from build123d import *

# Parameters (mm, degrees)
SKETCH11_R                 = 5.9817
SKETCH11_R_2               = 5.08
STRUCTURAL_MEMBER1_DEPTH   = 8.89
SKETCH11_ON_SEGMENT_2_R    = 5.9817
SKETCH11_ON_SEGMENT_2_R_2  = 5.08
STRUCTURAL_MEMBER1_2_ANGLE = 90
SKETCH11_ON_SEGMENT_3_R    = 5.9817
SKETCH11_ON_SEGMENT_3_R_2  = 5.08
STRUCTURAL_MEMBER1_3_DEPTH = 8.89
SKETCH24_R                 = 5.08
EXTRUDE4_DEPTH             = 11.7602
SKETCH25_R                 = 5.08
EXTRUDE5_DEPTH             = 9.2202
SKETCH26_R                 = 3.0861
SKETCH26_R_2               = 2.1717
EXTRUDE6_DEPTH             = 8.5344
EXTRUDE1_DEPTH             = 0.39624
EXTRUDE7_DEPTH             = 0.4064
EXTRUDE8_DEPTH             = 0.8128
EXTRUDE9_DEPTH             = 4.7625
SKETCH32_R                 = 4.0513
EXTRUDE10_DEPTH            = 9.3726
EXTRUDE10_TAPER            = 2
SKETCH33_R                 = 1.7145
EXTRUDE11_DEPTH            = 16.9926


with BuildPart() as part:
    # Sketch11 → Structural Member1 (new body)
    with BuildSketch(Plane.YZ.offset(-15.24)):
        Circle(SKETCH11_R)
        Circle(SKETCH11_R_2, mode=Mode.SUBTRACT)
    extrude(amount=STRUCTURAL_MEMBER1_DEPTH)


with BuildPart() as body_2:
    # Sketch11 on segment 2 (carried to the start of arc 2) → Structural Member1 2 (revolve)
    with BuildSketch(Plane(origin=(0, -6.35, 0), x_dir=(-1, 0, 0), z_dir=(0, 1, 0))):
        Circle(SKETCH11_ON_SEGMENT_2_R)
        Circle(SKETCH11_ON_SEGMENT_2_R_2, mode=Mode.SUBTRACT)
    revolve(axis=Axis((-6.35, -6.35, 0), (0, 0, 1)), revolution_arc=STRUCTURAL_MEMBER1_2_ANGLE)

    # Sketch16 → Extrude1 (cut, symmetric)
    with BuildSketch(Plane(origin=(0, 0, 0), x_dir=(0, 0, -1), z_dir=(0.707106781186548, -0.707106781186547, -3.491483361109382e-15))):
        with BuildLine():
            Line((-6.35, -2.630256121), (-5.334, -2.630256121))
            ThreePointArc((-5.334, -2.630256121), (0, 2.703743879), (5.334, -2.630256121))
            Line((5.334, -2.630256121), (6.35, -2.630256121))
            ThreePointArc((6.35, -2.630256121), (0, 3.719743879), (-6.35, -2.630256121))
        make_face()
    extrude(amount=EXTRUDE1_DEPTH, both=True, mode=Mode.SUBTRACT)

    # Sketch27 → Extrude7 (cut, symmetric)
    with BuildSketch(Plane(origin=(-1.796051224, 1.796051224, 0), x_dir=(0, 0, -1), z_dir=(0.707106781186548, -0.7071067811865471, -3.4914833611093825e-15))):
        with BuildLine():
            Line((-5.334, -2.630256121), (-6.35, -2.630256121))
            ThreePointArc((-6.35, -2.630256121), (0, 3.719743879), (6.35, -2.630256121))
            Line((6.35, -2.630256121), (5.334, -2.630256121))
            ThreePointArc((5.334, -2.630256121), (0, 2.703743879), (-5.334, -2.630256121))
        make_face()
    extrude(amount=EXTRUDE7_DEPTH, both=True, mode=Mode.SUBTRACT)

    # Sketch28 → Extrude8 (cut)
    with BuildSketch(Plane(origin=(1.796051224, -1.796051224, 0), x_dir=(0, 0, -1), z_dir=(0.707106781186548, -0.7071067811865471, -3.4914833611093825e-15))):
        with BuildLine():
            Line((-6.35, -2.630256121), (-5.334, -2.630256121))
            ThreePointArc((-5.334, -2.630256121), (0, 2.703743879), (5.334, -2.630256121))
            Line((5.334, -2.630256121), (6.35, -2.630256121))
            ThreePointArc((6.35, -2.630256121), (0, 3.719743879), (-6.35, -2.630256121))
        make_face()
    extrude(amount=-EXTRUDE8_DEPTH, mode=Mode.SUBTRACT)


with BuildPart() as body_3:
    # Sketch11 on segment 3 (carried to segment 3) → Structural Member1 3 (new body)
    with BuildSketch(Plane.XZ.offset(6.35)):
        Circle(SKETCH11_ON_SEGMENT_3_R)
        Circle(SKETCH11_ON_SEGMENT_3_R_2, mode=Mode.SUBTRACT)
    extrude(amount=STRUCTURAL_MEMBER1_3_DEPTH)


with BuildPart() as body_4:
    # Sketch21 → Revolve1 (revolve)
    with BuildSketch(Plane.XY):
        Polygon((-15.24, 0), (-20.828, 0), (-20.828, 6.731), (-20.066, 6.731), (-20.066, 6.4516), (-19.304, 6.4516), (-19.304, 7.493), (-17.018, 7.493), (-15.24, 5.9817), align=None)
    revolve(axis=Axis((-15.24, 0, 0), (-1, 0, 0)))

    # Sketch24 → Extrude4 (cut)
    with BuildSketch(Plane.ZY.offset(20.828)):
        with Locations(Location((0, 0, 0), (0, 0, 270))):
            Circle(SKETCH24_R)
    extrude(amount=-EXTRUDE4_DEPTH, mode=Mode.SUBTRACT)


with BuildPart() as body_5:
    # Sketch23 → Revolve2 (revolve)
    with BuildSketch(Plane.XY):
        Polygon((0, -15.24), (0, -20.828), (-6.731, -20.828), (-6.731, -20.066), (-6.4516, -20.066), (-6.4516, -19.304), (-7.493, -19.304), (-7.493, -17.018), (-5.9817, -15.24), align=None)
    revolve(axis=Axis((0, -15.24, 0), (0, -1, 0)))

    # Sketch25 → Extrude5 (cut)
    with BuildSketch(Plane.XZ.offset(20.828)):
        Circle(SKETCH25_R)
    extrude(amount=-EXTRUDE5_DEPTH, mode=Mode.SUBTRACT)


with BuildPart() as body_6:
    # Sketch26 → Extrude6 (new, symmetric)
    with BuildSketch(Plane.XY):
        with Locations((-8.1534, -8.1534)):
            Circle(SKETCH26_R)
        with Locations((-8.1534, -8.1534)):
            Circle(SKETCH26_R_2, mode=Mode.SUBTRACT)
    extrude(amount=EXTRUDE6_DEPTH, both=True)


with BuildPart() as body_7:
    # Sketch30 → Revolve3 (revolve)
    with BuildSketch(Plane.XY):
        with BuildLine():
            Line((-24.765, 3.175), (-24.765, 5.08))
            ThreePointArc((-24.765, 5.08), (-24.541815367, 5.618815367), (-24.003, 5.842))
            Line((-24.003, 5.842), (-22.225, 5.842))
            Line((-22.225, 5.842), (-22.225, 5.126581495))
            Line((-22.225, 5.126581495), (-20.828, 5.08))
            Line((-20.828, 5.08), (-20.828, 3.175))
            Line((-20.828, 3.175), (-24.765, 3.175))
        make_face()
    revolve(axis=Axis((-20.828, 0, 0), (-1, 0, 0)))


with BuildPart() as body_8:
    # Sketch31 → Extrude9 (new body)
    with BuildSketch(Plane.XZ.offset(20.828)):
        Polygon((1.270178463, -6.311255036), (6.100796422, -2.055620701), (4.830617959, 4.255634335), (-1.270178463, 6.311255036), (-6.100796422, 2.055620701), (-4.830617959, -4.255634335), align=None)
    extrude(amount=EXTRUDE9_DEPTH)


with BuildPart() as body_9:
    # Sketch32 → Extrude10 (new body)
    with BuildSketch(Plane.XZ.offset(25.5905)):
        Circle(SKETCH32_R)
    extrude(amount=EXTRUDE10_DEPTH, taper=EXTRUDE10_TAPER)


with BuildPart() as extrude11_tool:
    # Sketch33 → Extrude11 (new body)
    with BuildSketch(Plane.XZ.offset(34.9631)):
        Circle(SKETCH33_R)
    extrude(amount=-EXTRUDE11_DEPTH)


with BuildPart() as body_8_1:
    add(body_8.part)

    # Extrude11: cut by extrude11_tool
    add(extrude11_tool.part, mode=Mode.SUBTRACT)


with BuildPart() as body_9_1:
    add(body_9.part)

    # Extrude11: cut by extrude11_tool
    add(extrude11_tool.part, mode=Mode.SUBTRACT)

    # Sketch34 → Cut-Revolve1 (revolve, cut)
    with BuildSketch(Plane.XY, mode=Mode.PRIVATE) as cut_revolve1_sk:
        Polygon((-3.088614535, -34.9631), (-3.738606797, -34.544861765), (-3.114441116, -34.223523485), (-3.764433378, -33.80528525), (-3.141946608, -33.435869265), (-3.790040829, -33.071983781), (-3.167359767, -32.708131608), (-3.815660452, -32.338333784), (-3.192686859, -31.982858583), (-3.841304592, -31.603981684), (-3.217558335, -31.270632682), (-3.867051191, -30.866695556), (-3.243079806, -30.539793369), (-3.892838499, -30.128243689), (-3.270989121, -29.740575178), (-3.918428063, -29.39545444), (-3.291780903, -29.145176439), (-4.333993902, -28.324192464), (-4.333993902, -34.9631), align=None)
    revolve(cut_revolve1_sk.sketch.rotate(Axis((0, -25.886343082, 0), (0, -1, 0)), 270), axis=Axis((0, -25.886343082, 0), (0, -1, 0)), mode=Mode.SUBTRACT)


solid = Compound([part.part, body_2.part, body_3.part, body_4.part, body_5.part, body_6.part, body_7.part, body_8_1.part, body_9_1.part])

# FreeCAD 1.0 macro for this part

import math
import FreeCAD as App
import Part
import Sketcher
from FreeCAD import Vector
Q = App.Units.Quantity

doc = App.newDocument("Part")
body = doc.addObject("PartDesign::Body", "Body")

sketch1 = body.newObject("Sketcher::SketchObject", "Sketch")
sketch1.AttachmentSupport = (doc.getObject("YZ_Plane"), [""])
sketch1.MapMode = "FlatFace"
sketch1.AttachmentOffset = App.Placement(Vector(0, 0, -0.6 * 25.4), App.Rotation())
sketch1.addGeometry(Part.Circle(Vector(0, 0, 0), Vector(0, 0, 1), 6), False)
sketch1.addGeometry(Part.Circle(Vector(0, 0, 0), Vector(0, 0, 1), 5), False)
sketch1.addConstraint(Sketcher.Constraint("Coincident", 0, 3, -1, 1))
sketch1.addConstraint(Sketcher.Constraint("Coincident", 1, 3, -1, 1))
sketch1.addConstraint(Sketcher.Constraint("Diameter", 1, Q("0.4 in")))
sketch1.addConstraint(Sketcher.Constraint("Diameter", 0, Q("0.471 in")))
pad1 = body.newObject("PartDesign::Pad", "Pad")
pad1.Profile = sketch1
pad1.Length = Q("0.35 in")
body2 = doc.addObject("PartDesign::Body", "Body001")

sketch2 = body2.newObject("Sketcher::SketchObject", "Sketch001")
sketch2.AttachmentSupport = (doc.getObject("XZ_Plane001"), [""])
sketch2.MapMode = "FlatFace"
sketch2.AttachmentOffset = App.Placement(Vector(0, 0, 0.25 * 25.4), App.Rotation())
sketch2.addGeometry(Part.Circle(Vector(0, 0, 0), Vector(0, 0, 1), 6), False)
sketch2.addGeometry(Part.Circle(Vector(0, 0, 0), Vector(0, 0, 1), 5), False)
sketch2.addGeometry(Part.LineSegment(Vector(-6, 0, 0), Vector(-6, 10, 0)), True)
sketch2.addConstraint(Sketcher.Constraint("Vertical", 2))
sketch2.addConstraint(Sketcher.Constraint("Coincident", 0, 3, -1, 1))
sketch2.addConstraint(Sketcher.Constraint("Coincident", 1, 3, -1, 1))
sketch2.addConstraint(Sketcher.Constraint("PointOnObject", 2, 1, -1))
sketch2.addConstraint(Sketcher.Constraint("Diameter", 1, Q("0.4 in")))
sketch2.addConstraint(Sketcher.Constraint("Diameter", 0, Q("0.471 in")))
sketch2.addConstraint(Sketcher.Constraint("DistanceX", 2, 1, -1, 1, Q("0.25 in")))
sketch2.addConstraint(Sketcher.Constraint("DistanceY", 2, 1, 2, 2, 10.0))
revolution = body2.newObject("PartDesign::Revolution", "Revolution")
revolution.Profile = sketch2
revolution.ReferenceAxis = (sketch2, ["Axis0"])
revolution.Angle = 90

sketch3 = body2.newObject("Sketcher::SketchObject", "Sketch002")
sketch3.Placement = App.Placement(Vector(0, 0, 0), App.Rotation(Vector(0, 0, -1), Vector(0.707106781, 0.707106781, 0), Vector(0.707106781, -0.707106781, 0), "ZXY"))
sketch3.addGeometry(Part.LineSegment(Vector(-6.3, -2.6, 0), Vector(-5.3, -2.6, 0)), False)
sketch3.addGeometry(Part.ArcOfCircle(Part.Circle(Vector(0, -2.6, 0), Vector(0, 0, 1), 5.3), math.radians(0), math.radians(180)), False)
sketch3.addGeometry(Part.LineSegment(Vector(5.3, -2.6, 0), Vector(6.3, -2.6, 0)), False)
sketch3.addGeometry(Part.ArcOfCircle(Part.Circle(Vector(0, -2.6, 0), Vector(0, 0, 1), 6.3), math.radians(0), math.radians(180)), False)
sketch3.addConstraint(Sketcher.Constraint("Coincident", 0, 2, 1, 2))
sketch3.addConstraint(Sketcher.Constraint("Coincident", 1, 1, 2, 1))
sketch3.addConstraint(Sketcher.Constraint("Coincident", 2, 2, 3, 1))
sketch3.addConstraint(Sketcher.Constraint("Coincident", 3, 2, 0, 1))
sketch3.addConstraint(Sketcher.Constraint("Horizontal", 0))
sketch3.addConstraint(Sketcher.Constraint("Horizontal", 2))
sketch3.addConstraint(Sketcher.Constraint("Coincident", 3, 3, 1, 3))
sketch3.addConstraint(Sketcher.Constraint("Symmetric", 0, 2, 1, 1, -2))
sketch3.addConstraint(Sketcher.Constraint("Horizontal", 3, 3, 0, 2))
sketch3.addConstraint(Sketcher.Constraint("Radius", 1, Q("0.21 in")))
sketch3.addConstraint(Sketcher.Constraint("Radius", 3, Q("0.25 in")))
sketch3.addConstraint(Sketcher.Constraint("DistanceY", 1, 3, -1, 1, 2.630256))
pocket1 = body2.newObject("PartDesign::Pocket", "Pocket")
pocket1.Profile = sketch3
pocket1.Length = Q("0.0312 in")
pocket1.Midplane = True

sketch4 = body2.newObject("Sketcher::SketchObject", "Sketch003")
sketch4.Placement = App.Placement(Vector(-1.796051, 1.796051, 0), App.Rotation(Vector(0, 0, -1), Vector(0.707106781, 0.707106781, 0), Vector(0.707106781, -0.707106781, 0), "ZXY"))
sketch4.addGeometry(Part.LineSegment(Vector(-6.3, -2.6, 0), Vector(-5.3, -2.6, 0)), False)
sketch4.addGeometry(Part.ArcOfCircle(Part.Circle(Vector(0, -2.6, 0), Vector(0, 0, 1), 5.3), math.radians(0), math.radians(180)), False)
sketch4.addGeometry(Part.LineSegment(Vector(5.3, -2.6, 0), Vector(6.3, -2.6, 0)), False)
sketch4.addGeometry(Part.ArcOfCircle(Part.Circle(Vector(0, -2.6, 0), Vector(0, 0, 1), 6.3), math.radians(0), math.radians(180)), False)
sketch4.addConstraint(Sketcher.Constraint("Coincident", 0, 2, 1, 2))
sketch4.addConstraint(Sketcher.Constraint("Coincident", 1, 1, 2, 1))
sketch4.addConstraint(Sketcher.Constraint("Coincident", 2, 2, 3, 1))
sketch4.addConstraint(Sketcher.Constraint("Coincident", 3, 2, 0, 1))
sketch4.addConstraint(Sketcher.Constraint("Horizontal", 0))
sketch4.addConstraint(Sketcher.Constraint("Horizontal", 2))
sketch4.addConstraint(Sketcher.Constraint("Coincident", 3, 3, 1, 3))
sketch4.addConstraint(Sketcher.Constraint("Symmetric", 0, 2, 1, 1, -2))
sketch4.addConstraint(Sketcher.Constraint("Horizontal", 3, 3, 0, 2))
sketch4.addConstraint(Sketcher.Constraint("Radius", 1, Q("0.21 in")))
sketch4.addConstraint(Sketcher.Constraint("Radius", 3, Q("0.25 in")))
sketch4.addConstraint(Sketcher.Constraint("DistanceY", 1, 3, -1, 1, 2.630256))
pocket2 = body2.newObject("PartDesign::Pocket", "Pocket001")
pocket2.Profile = sketch4
pocket2.Length = Q("0.032 in")
pocket2.Midplane = True

sketch5 = body2.newObject("Sketcher::SketchObject", "Sketch004")
sketch5.Placement = App.Placement(Vector(1.796051, -1.796051, 0), App.Rotation(Vector(0, 0, -1), Vector(0.707106781, 0.707106781, 0), Vector(0.707106781, -0.707106781, 0), "ZXY"))
sketch5.addGeometry(Part.LineSegment(Vector(-6.3, -2.6, 0), Vector(-5.3, -2.6, 0)), False)
sketch5.addGeometry(Part.ArcOfCircle(Part.Circle(Vector(0, -2.6, 0), Vector(0, 0, 1), 5.3), math.radians(0), math.radians(180)), False)
sketch5.addGeometry(Part.LineSegment(Vector(5.3, -2.6, 0), Vector(6.3, -2.6, 0)), False)
sketch5.addGeometry(Part.ArcOfCircle(Part.Circle(Vector(0, -2.6, 0), Vector(0, 0, 1), 6.3), math.radians(0), math.radians(180)), False)
sketch5.addConstraint(Sketcher.Constraint("Coincident", 0, 2, 1, 2))
sketch5.addConstraint(Sketcher.Constraint("Coincident", 1, 1, 2, 1))
sketch5.addConstraint(Sketcher.Constraint("Coincident", 2, 2, 3, 1))
sketch5.addConstraint(Sketcher.Constraint("Coincident", 3, 2, 0, 1))
sketch5.addConstraint(Sketcher.Constraint("Horizontal", 0))
sketch5.addConstraint(Sketcher.Constraint("Horizontal", 2))
sketch5.addConstraint(Sketcher.Constraint("Coincident", 3, 3, 1, 3))
sketch5.addConstraint(Sketcher.Constraint("Symmetric", 0, 2, 1, 1, -2))
sketch5.addConstraint(Sketcher.Constraint("Horizontal", 3, 3, 0, 2))
sketch5.addConstraint(Sketcher.Constraint("Radius", 1, Q("0.21 in")))
sketch5.addConstraint(Sketcher.Constraint("Radius", 3, Q("0.25 in")))
sketch5.addConstraint(Sketcher.Constraint("DistanceY", 1, 3, -1, 1, 2.630256))
pocket3 = body2.newObject("PartDesign::Pocket", "Pocket002")
pocket3.Profile = sketch5
pocket3.Length = Q("0.032 in")
body3 = doc.addObject("PartDesign::Body", "Body002")

sketch6 = body3.newObject("Sketcher::SketchObject", "Sketch005")
sketch6.AttachmentSupport = (doc.getObject("XZ_Plane002"), [""])
sketch6.MapMode = "FlatFace"
sketch6.AttachmentOffset = App.Placement(Vector(0, 0, 0.25 * 25.4), App.Rotation())
sketch6.addGeometry(Part.Circle(Vector(0, 0, 0), Vector(0, 0, 1), 6), False)
sketch6.addGeometry(Part.Circle(Vector(0, 0, 0), Vector(0, 0, 1), 5), False)
sketch6.addConstraint(Sketcher.Constraint("Coincident", 0, 3, -1, 1))
sketch6.addConstraint(Sketcher.Constraint("Coincident", 1, 3, -1, 1))
sketch6.addConstraint(Sketcher.Constraint("Diameter", 1, Q("0.4 in")))
sketch6.addConstraint(Sketcher.Constraint("Diameter", 0, Q("0.471 in")))
pad2 = body3.newObject("PartDesign::Pad", "Pad001")
pad2.Profile = sketch6
pad2.Length = Q("0.35 in")
body4 = doc.addObject("PartDesign::Body", "Body003")

sketch7 = body4.newObject("Sketcher::SketchObject", "Sketch006")
sketch7.AttachmentSupport = (doc.getObject("XY_Plane003"), [""])
sketch7.MapMode = "FlatFace"
sketch7.addGeometry(Part.LineSegment(Vector(-20.83, 0, 0), Vector(-15.24, 0, 0)), False)
sketch7.addGeometry(Part.LineSegment(Vector(-15.24, 0, 0), Vector(-15.24, 5.98, 0)), False)
sketch7.addGeometry(Part.LineSegment(Vector(-15.24, 5.98, 0), Vector(-17.02, 7.49, 0)), False)
sketch7.addGeometry(Part.LineSegment(Vector(-17.02, 7.49, 0), Vector(-19.3, 7.49, 0)), False)
sketch7.addGeometry(Part.LineSegment(Vector(-19.3, 7.49, 0), Vector(-19.3, 6.45, 0)), False)
sketch7.addGeometry(Part.LineSegment(Vector(-19.3, 6.45, 0), Vector(-20.07, 6.45, 0)), False)
sketch7.addGeometry(Part.LineSegment(Vector(-20.07, 6.45, 0), Vector(-20.07, 6.73, 0)), False)
sketch7.addGeometry(Part.LineSegment(Vector(-20.07, 6.73, 0), Vector(-20.83, 6.73, 0)), False)
sketch7.addGeometry(Part.LineSegment(Vector(-20.83, 6.73, 0), Vector(-20.83, 0, 0)), False)
sketch7.addConstraint(Sketcher.Constraint("Coincident", 0, 2, 1, 1))
sketch7.addConstraint(Sketcher.Constraint("Coincident", 1, 2, 2, 1))
sketch7.addConstraint(Sketcher.Constraint("Coincident", 2, 2, 3, 1))
sketch7.addConstraint(Sketcher.Constraint("Coincident", 3, 2, 4, 1))
sketch7.addConstraint(Sketcher.Constraint("Coincident", 4, 2, 5, 1))
sketch7.addConstraint(Sketcher.Constraint("Coincident", 5, 2, 6, 1))
sketch7.addConstraint(Sketcher.Constraint("Coincident", 6, 2, 7, 1))
sketch7.addConstraint(Sketcher.Constraint("Coincident", 7, 2, 8, 1))
sketch7.addConstraint(Sketcher.Constraint("Coincident", 8, 2, 0, 1))
sketch7.addConstraint(Sketcher.Constraint("Horizontal", 0))
sketch7.addConstraint(Sketcher.Constraint("Vertical", 1))
sketch7.addConstraint(Sketcher.Constraint("Horizontal", 3))
sketch7.addConstraint(Sketcher.Constraint("Vertical", 4))
sketch7.addConstraint(Sketcher.Constraint("Horizontal", 5))
sketch7.addConstraint(Sketcher.Constraint("Vertical", 6))
sketch7.addConstraint(Sketcher.Constraint("Horizontal", 7))
sketch7.addConstraint(Sketcher.Constraint("Vertical", 8))
sketch7.addConstraint(Sketcher.Constraint("PointOnObject", 0, 2, -1))
sketch7.addConstraint(Sketcher.Constraint("Equal", 5, 7))
sketch7.addConstraint(Sketcher.Constraint("DistanceX", 0, 1, 0, 2, Q("0.22 in")))
sketch7.addConstraint(Sketcher.Constraint("DistanceX", 3, 2, 3, 1, Q("0.09 in")))
sketch7.addConstraint(Sketcher.Constraint("DistanceX", 5, 2, 5, 1, Q("0.03 in")))
sketch7.addConstraint(Sketcher.Constraint("DistanceX", 0, 2, -1, 1, Q("0.6 in")))
sketch7.addConstraint(Sketcher.Constraint("DistanceY", 4, 2, 4, 1, Q("0.041 in")))
sketch7.addConstraint(Sketcher.Constraint("DistanceY", 6, 1, 6, 2, Q("0.011 in")))
sketch7.addConstraint(Sketcher.Constraint("DistanceY", 8, 2, 8, 1, Q("0.265 in")))
sketch7.addConstraint(Sketcher.Constraint("DistanceY", 1, 1, 1, 2, Q("0.2355 in")))
revolution2 = body4.newObject("PartDesign::Revolution", "Revolution001")
revolution2.Profile = sketch7
revolution2.ReferenceAxis = (sketch7, ["H_Axis"])
revolution2.Angle = 360

sketch8 = body4.newObject("Sketcher::SketchObject", "Sketch007")
sketch8.AttachmentSupport = (doc.getObject("YZ_Plane003"), [""])
sketch8.MapMode = "FlatFace"
sketch8.AttachmentOffset = App.Placement(Vector(0, 0, -0.82 * 25.4), App.Rotation())
sketch8.addGeometry(Part.Circle(Vector(0, 0, 0), Vector(0, 0, 1), 5), False)
sketch8.addConstraint(Sketcher.Constraint("Coincident", 0, 3, -1, 1))
sketch8.addConstraint(Sketcher.Constraint("Diameter", 0, Q("0.4 in")))
pocket4 = body4.newObject("PartDesign::Pocket", "Pocket003")
pocket4.Profile = sketch8
pocket4.Length = Q("0.463 in")
pocket4.Reversed = True
body5 = doc.addObject("PartDesign::Body", "Body004")

sketch9 = body5.newObject("Sketcher::SketchObject", "Sketch008")
sketch9.AttachmentSupport = (doc.getObject("XY_Plane004"), [""])
sketch9.MapMode = "FlatFace"
sketch9.addGeometry(Part.LineSegment(Vector(0, -20.83, 0), Vector(0, -15.24, 0)), False)
sketch9.addGeometry(Part.LineSegment(Vector(0, -15.24, 0), Vector(-5.98, -15.24, 0)), False)
sketch9.addGeometry(Part.LineSegment(Vector(-5.98, -15.24, 0), Vector(-7.49, -17.02, 0)), False)
sketch9.addGeometry(Part.LineSegment(Vector(-7.49, -17.02, 0), Vector(-7.49, -19.3, 0)), False)
sketch9.addGeometry(Part.LineSegment(Vector(-7.49, -19.3, 0), Vector(-6.45, -19.3, 0)), False)
sketch9.addGeometry(Part.LineSegment(Vector(-6.45, -19.3, 0), Vector(-6.45, -20.07, 0)), False)
sketch9.addGeometry(Part.LineSegment(Vector(-6.45, -20.07, 0), Vector(-6.73, -20.07, 0)), False)
sketch9.addGeometry(Part.LineSegment(Vector(-6.73, -20.07, 0), Vector(-6.73, -20.83, 0)), False)
sketch9.addGeometry(Part.LineSegment(Vector(-6.73, -20.83, 0), Vector(0, -20.83, 0)), False)
sketch9.addConstraint(Sketcher.Constraint("Coincident", 0, 2, 1, 1))
sketch9.addConstraint(Sketcher.Constraint("Coincident", 1, 2, 2, 1))
sketch9.addConstraint(Sketcher.Constraint("Coincident", 2, 2, 3, 1))
sketch9.addConstraint(Sketcher.Constraint("Coincident", 3, 2, 4, 1))
sketch9.addConstraint(Sketcher.Constraint("Coincident", 4, 2, 5, 1))
sketch9.addConstraint(Sketcher.Constraint("Coincident", 5, 2, 6, 1))
sketch9.addConstraint(Sketcher.Constraint("Coincident", 6, 2, 7, 1))
sketch9.addConstraint(Sketcher.Constraint("Coincident", 7, 2, 8, 1))
sketch9.addConstraint(Sketcher.Constraint("Coincident", 8, 2, 0, 1))
sketch9.addConstraint(Sketcher.Constraint("Vertical", 0))
sketch9.addConstraint(Sketcher.Constraint("Horizontal", 1))
sketch9.addConstraint(Sketcher.Constraint("Vertical", 3))
sketch9.addConstraint(Sketcher.Constraint("Horizontal", 4))
sketch9.addConstraint(Sketcher.Constraint("Vertical", 5))
sketch9.addConstraint(Sketcher.Constraint("Horizontal", 6))
sketch9.addConstraint(Sketcher.Constraint("Vertical", 7))
sketch9.addConstraint(Sketcher.Constraint("Horizontal", 8))
sketch9.addConstraint(Sketcher.Constraint("PointOnObject", 0, 2, -2))
sketch9.addConstraint(Sketcher.Constraint("Equal", 5, 7))
sketch9.addConstraint(Sketcher.Constraint("DistanceY", 0, 1, 0, 2, Q("0.22 in")))
sketch9.addConstraint(Sketcher.Constraint("DistanceY", 3, 2, 3, 1, Q("0.09 in")))
sketch9.addConstraint(Sketcher.Constraint("DistanceY", 5, 2, 5, 1, Q("0.03 in")))
sketch9.addConstraint(Sketcher.Constraint("DistanceY", 0, 2, -1, 1, Q("0.6 in")))
sketch9.addConstraint(Sketcher.Constraint("DistanceX", 4, 1, 4, 2, Q("0.041 in")))
sketch9.addConstraint(Sketcher.Constraint("DistanceX", 6, 2, 6, 1, Q("0.011 in")))
sketch9.addConstraint(Sketcher.Constraint("DistanceX", 8, 1, 8, 2, Q("0.265 in")))
sketch9.addConstraint(Sketcher.Constraint("DistanceX", 1, 2, 1, 1, Q("0.2355 in")))
revolution3 = body5.newObject("PartDesign::Revolution", "Revolution002")
revolution3.Profile = sketch9
revolution3.ReferenceAxis = (sketch9, ["V_Axis"])
revolution3.Angle = 360

sketch10 = body5.newObject("Sketcher::SketchObject", "Sketch009")
sketch10.AttachmentSupport = (doc.getObject("XZ_Plane004"), [""])
sketch10.MapMode = "FlatFace"
sketch10.AttachmentOffset = App.Placement(Vector(0, 0, 0.82 * 25.4), App.Rotation())
sketch10.addGeometry(Part.Circle(Vector(0, 0, 0), Vector(0, 0, 1), 5), False)
sketch10.addConstraint(Sketcher.Constraint("Coincident", 0, 3, -1, 1))
sketch10.addConstraint(Sketcher.Constraint("Diameter", 0, Q("0.4 in")))
pocket5 = body5.newObject("PartDesign::Pocket", "Pocket004")
pocket5.Profile = sketch10
pocket5.Length = Q("0.363 in")
body6 = doc.addObject("PartDesign::Body", "Body005")

sketch11 = body6.newObject("Sketcher::SketchObject", "Sketch010")
sketch11.AttachmentSupport = (doc.getObject("XY_Plane005"), [""])
sketch11.MapMode = "FlatFace"
sketch11.addGeometry(Part.Circle(Vector(-8.2, -8.2, 0), Vector(0, 0, 1), 3.1), False)
sketch11.addGeometry(Part.Circle(Vector(-8.2, -8.2, 0), Vector(0, 0, 1), 2.2), False)
sketch11.addConstraint(Sketcher.Constraint("Coincident", 1, 3, 0, 3))
sketch11.addConstraint(Sketcher.Constraint("Diameter", 0, Q("0.243 in")))
sketch11.addConstraint(Sketcher.Constraint("Diameter", 1, Q("0.171 in")))
sketch11.addConstraint(Sketcher.Constraint("DistanceX", 0, 3, -1, 1, Q("0.321 in")))
sketch11.addConstraint(Sketcher.Constraint("DistanceY", 0, 3, -1, 1, Q("0.321 in")))
pad3 = body6.newObject("PartDesign::Pad", "Pad002")
pad3.Profile = sketch11
pad3.Length = Q("0.672 in")
pad3.Midplane = True
body7 = doc.addObject("PartDesign::Body", "Body006")

sketch12 = body7.newObject("Sketcher::SketchObject", "Sketch011")
sketch12.AttachmentSupport = (doc.getObject("XY_Plane006"), [""])
sketch12.MapMode = "FlatFace"
sketch12.addGeometry(Part.LineSegment(Vector(-24.8, 5.1, 0), Vector(-24.8, 3.2, 0)), False)
sketch12.addGeometry(Part.LineSegment(Vector(-24.8, 3.2, 0), Vector(-20.8, 3.2, 0)), False)
sketch12.addGeometry(Part.LineSegment(Vector(-20.8, 3.2, 0), Vector(-20.8, 5.1, 0)), False)
sketch12.addGeometry(Part.LineSegment(Vector(-20.8, 5.1, 0), Vector(-22.2, 5.1, 0)), False)
sketch12.addGeometry(Part.LineSegment(Vector(-22.2, 5.1, 0), Vector(-22.2, 5.8, 0)), False)
sketch12.addGeometry(Part.LineSegment(Vector(-22.2, 5.8, 0), Vector(-24, 5.8, 0)), False)
sketch12.addGeometry(Part.ArcOfCircle(Part.Circle(Vector(-24, 5.1, 0), Vector(0, 0, 1), 0.8), math.radians(90), math.radians(180)), False)
sketch12.addConstraint(Sketcher.Constraint("Coincident", 0, 2, 1, 1))
sketch12.addConstraint(Sketcher.Constraint("Coincident", 1, 2, 2, 1))
sketch12.addConstraint(Sketcher.Constraint("Coincident", 2, 2, 3, 1))
sketch12.addConstraint(Sketcher.Constraint("Coincident", 3, 2, 4, 1))
sketch12.addConstraint(Sketcher.Constraint("Coincident", 4, 2, 5, 1))
sketch12.addConstraint(Sketcher.Constraint("Tangent", 5, 2, 6, 1))
sketch12.addConstraint(Sketcher.Constraint("Tangent", 6, 2, 0, 1))
sketch12.addConstraint(Sketcher.Constraint("Vertical", 0))
sketch12.addConstraint(Sketcher.Constraint("Horizontal", 1))
sketch12.addConstraint(Sketcher.Constraint("Vertical", 2))
sketch12.addConstraint(Sketcher.Constraint("Vertical", 4))
sketch12.addConstraint(Sketcher.Constraint("Horizontal", 5))
sketch12.addConstraint(Sketcher.Constraint("Horizontal", 6, 3, 2, 2))
sketch12.addConstraint(Sketcher.Constraint("Radius", 6, Q("0.03 in")))
sketch12.addConstraint(Sketcher.Constraint("DistanceX", 5, 2, 5, 1, Q("0.07 in")))
sketch12.addConstraint(Sketcher.Constraint("DistanceY", -1, 1, 6, 3, Q("0.2 in")))
sketch12.addConstraint(Sketcher.Constraint("DistanceX", 1, 1, 1, 2, Q("0.155 in")))
sketch12.addConstraint(Sketcher.Constraint("DistanceY", 0, 2, 0, 1, Q("0.075 in")))
sketch12.addConstraint(Sketcher.Constraint("DistanceX", 1, 2, -1, 1, Q("0.82 in")))
sketch12.addConstraint(Sketcher.Constraint("DistanceY", 4, 1, 4, 2, 0.715419))
revolution4 = body7.newObject("PartDesign::Revolution", "Revolution003")
revolution4.Profile = sketch12
revolution4.ReferenceAxis = (sketch12, ["H_Axis"])
revolution4.Angle = 360
body8 = doc.addObject("PartDesign::Body", "Body007")

sketch13 = body8.newObject("Sketcher::SketchObject", "Sketch012")
sketch13.AttachmentSupport = (doc.getObject("XZ_Plane007"), [""])
sketch13.MapMode = "FlatFace"
sketch13.AttachmentOffset = App.Placement(Vector(0, 0, 0.82 * 25.4), App.Rotation())
sketch13.addGeometry(Part.LineSegment(Vector(1, -6, 0), Vector(6, -2, 0)), False)
sketch13.addGeometry(Part.LineSegment(Vector(6, -2, 0), Vector(5, 4, 0)), False)
sketch13.addGeometry(Part.LineSegment(Vector(5, 4, 0), Vector(-1, 6, 0)), False)
sketch13.addGeometry(Part.LineSegment(Vector(-1, 6, 0), Vector(-6, 2, 0)), False)
sketch13.addGeometry(Part.LineSegment(Vector(-6, 2, 0), Vector(-5, -4, 0)), False)
sketch13.addGeometry(Part.LineSegment(Vector(-5, -4, 0), Vector(1, -6, 0)), False)
sketch13.addConstraint(Sketcher.Constraint("Coincident", 0, 2, 1, 1))
sketch13.addConstraint(Sketcher.Constraint("Coincident", 1, 2, 2, 1))
sketch13.addConstraint(Sketcher.Constraint("Coincident", 2, 2, 3, 1))
sketch13.addConstraint(Sketcher.Constraint("Coincident", 3, 2, 4, 1))
sketch13.addConstraint(Sketcher.Constraint("Coincident", 4, 2, 5, 1))
sketch13.addConstraint(Sketcher.Constraint("Coincident", 5, 2, 0, 1))
sketch13.addConstraint(Sketcher.Constraint("Symmetric", 0, 2, 3, 2, -1, 1))
sketch13.addConstraint(Sketcher.Constraint("Symmetric", 1, 2, 4, 2, -1, 1))
sketch13.addConstraint(Sketcher.Constraint("Symmetric", 2, 2, 5, 2, -1, 1))
sketch13.addConstraint(Sketcher.Constraint("Equal", 0, 1))
sketch13.addConstraint(Sketcher.Constraint("Equal", 1, 2))
sketch13.addConstraint(Sketcher.Constraint("Distance", 0, 6.437802))
sketch13.addConstraint(Sketcher.Constraint("DistanceY", 0, 2, -1, 1, 2.055621))
sketch13.addConstraint(Sketcher.Constraint("DistanceX", 2, 2, -1, 1, 1.270178))
sketch13.addConstraint(Sketcher.Constraint("DistanceX", 1, 2, 0, 2, 1.270178))
pad4 = body8.newObject("PartDesign::Pad", "Pad003")
pad4.Profile = sketch13
pad4.Length = Q("0.1875 in")
body9 = doc.addObject("PartDesign::Body", "Body008")

sketch14 = body9.newObject("Sketcher::SketchObject", "Sketch013")
sketch14.AttachmentSupport = (doc.getObject("XZ_Plane008"), [""])
sketch14.MapMode = "FlatFace"
sketch14.AttachmentOffset = App.Placement(Vector(0, 0, 1.0075 * 25.4), App.Rotation())
sketch14.addGeometry(Part.Circle(Vector(0, 0, 0), Vector(0, 0, 1), 4.1), False)
sketch14.addConstraint(Sketcher.Constraint("Coincident", 0, 3, -1, 1))
sketch14.addConstraint(Sketcher.Constraint("Diameter", 0, Q("0.319 in")))
pad5 = body9.newObject("PartDesign::Pad", "Pad004")
pad5.Profile = sketch14
pad5.Length = Q("0.369 in")
pad5.TaperAngle = -2
body10 = doc.addObject("PartDesign::Body", "Body009")

sketch15 = body10.newObject("Sketcher::SketchObject", "Sketch014")
sketch15.AttachmentSupport = (doc.getObject("XZ_Plane009"), [""])
sketch15.MapMode = "FlatFace"
sketch15.AttachmentOffset = App.Placement(Vector(0, 0, 1.3765 * 25.4), App.Rotation())
sketch15.addGeometry(Part.Circle(Vector(0, 0, 0), Vector(0, 0, 1), 1.7), False)
sketch15.addConstraint(Sketcher.Constraint("Coincident", 0, 3, -1, 1))
sketch15.addConstraint(Sketcher.Constraint("Diameter", 0, Q("0.135 in")))
pad6 = body10.newObject("PartDesign::Pad", "Pad005")
pad6.Profile = sketch15
pad6.Length = Q("0.669 in")
pad6.Reversed = True
doc.recompute()

body11 = doc.addObject("PartDesign::Body", "Body010")
body11.BaseFeature = body10
boolean = body8.newObject("PartDesign::Boolean", "Boolean")
boolean.Type = "Cut"
boolean.addObjects([body11])
doc.recompute()

boolean2 = body9.newObject("PartDesign::Boolean", "Boolean001")
boolean2.Type = "Cut"
boolean2.addObjects([body10])

sketch16 = body9.newObject("Sketcher::SketchObject", "Sketch015")
sketch16.AttachmentSupport = (doc.getObject("XY_Plane008"), [""])
sketch16.MapMode = "FlatFace"
sketch16.addGeometry(Part.LineSegment(Vector(-3.1, -35, 0), Vector(-3.7, -34.5, 0)), False)
sketch16.addGeometry(Part.LineSegment(Vector(-3.7, -34.5, 0), Vector(-3.1, -34.2, 0)), False)
sketch16.addGeometry(Part.LineSegment(Vector(-3.1, -34.2, 0), Vector(-3.8, -33.8, 0)), False)
sketch16.addGeometry(Part.LineSegment(Vector(-3.8, -33.8, 0), Vector(-3.1, -33.4, 0)), False)
sketch16.addGeometry(Part.LineSegment(Vector(-3.1, -33.4, 0), Vector(-3.8, -33.1, 0)), False)
sketch16.addGeometry(Part.LineSegment(Vector(-3.8, -33.1, 0), Vector(-3.2, -32.7, 0)), False)
sketch16.addGeometry(Part.LineSegment(Vector(-3.2, -32.7, 0), Vector(-3.8, -32.3, 0)), False)
sketch16.addGeometry(Part.LineSegment(Vector(-3.8, -32.3, 0), Vector(-3.2, -32, 0)), False)
sketch16.addGeometry(Part.LineSegment(Vector(-3.2, -32, 0), Vector(-3.8, -31.6, 0)), False)
sketch16.addGeometry(Part.LineSegment(Vector(-3.8, -31.6, 0), Vector(-3.2, -31.3, 0)), False)
sketch16.addGeometry(Part.LineSegment(Vector(-3.2, -31.3, 0), Vector(-3.9, -30.9, 0)), False)
sketch16.addGeometry(Part.LineSegment(Vector(-3.9, -30.9, 0), Vector(-3.2, -30.5, 0)), False)
sketch16.addGeometry(Part.LineSegment(Vector(-3.2, -30.5, 0), Vector(-3.9, -30.1, 0)), False)
sketch16.addGeometry(Part.LineSegment(Vector(-3.9, -30.1, 0), Vector(-3.3, -29.7, 0)), False)
sketch16.addGeometry(Part.LineSegment(Vector(-3.3, -29.7, 0), Vector(-3.9, -29.4, 0)), False)
sketch16.addGeometry(Part.LineSegment(Vector(-3.9, -29.4, 0), Vector(-3.3, -29.1, 0)), False)
sketch16.addGeometry(Part.LineSegment(Vector(-3.3, -29.1, 0), Vector(-4.3, -28.3, 0)), False)
sketch16.addGeometry(Part.LineSegment(Vector(-4.3, -28.3, 0), Vector(-4.3, -35, 0)), False)
sketch16.addGeometry(Part.LineSegment(Vector(-4.3, -35, 0), Vector(-3.1, -35, 0)), False)
sketch16.addConstraint(Sketcher.Constraint("Coincident", 0, 2, 1, 1))
sketch16.addConstraint(Sketcher.Constraint("Coincident", 1, 2, 2, 1))
sketch16.addConstraint(Sketcher.Constraint("Coincident", 2, 2, 3, 1))
sketch16.addConstraint(Sketcher.Constraint("Coincident", 3, 2, 4, 1))
sketch16.addConstraint(Sketcher.Constraint("Coincident", 4, 2, 5, 1))
sketch16.addConstraint(Sketcher.Constraint("Coincident", 5, 2, 6, 1))
sketch16.addConstraint(Sketcher.Constraint("Coincident", 6, 2, 7, 1))
sketch16.addConstraint(Sketcher.Constraint("Coincident", 7, 2, 8, 1))
sketch16.addConstraint(Sketcher.Constraint("Coincident", 8, 2, 9, 1))
sketch16.addConstraint(Sketcher.Constraint("Coincident", 9, 2, 10, 1))
sketch16.addConstraint(Sketcher.Constraint("Coincident", 10, 2, 11, 1))
sketch16.addConstraint(Sketcher.Constraint("Coincident", 11, 2, 12, 1))
sketch16.addConstraint(Sketcher.Constraint("Coincident", 12, 2, 13, 1))
sketch16.addConstraint(Sketcher.Constraint("Coincident", 13, 2, 14, 1))
sketch16.addConstraint(Sketcher.Constraint("Coincident", 14, 2, 15, 1))
sketch16.addConstraint(Sketcher.Constraint("Coincident", 15, 2, 16, 1))
sketch16.addConstraint(Sketcher.Constraint("Coincident", 16, 2, 17, 1))
sketch16.addConstraint(Sketcher.Constraint("Coincident", 17, 2, 18, 1))
sketch16.addConstraint(Sketcher.Constraint("Coincident", 18, 2, 0, 1))
sketch16.addConstraint(Sketcher.Constraint("Vertical", 17))
sketch16.addConstraint(Sketcher.Constraint("Horizontal", 18))
sketch16.addConstraint(Sketcher.Constraint("Parallel", 0, 2))
sketch16.addConstraint(Sketcher.Constraint("Equal", 0, 2))
sketch16.addConstraint(Sketcher.Constraint("DistanceY", 17, 2, -1, 1, Q("1.3765 in")))
sketch16.addConstraint(Sketcher.Constraint("DistanceY", 8, 2, 12, 2, Q("0.0580999 in")))
sketch16.addConstraint(Sketcher.Constraint("DistanceX", 18, 1, 18, 2, 1.245379))
sketch16.addConstraint(Sketcher.Constraint("DistanceY", 2, 2, 4, 2, 0.733301))
sketch16.addConstraint(Sketcher.Constraint("DistanceX", 4, 2, 1, 2, 0.6756))
sketch16.addConstraint(Sketcher.Constraint("DistanceX", 6, 2, 5, 2, 0.648301))
sketch16.addConstraint(Sketcher.Constraint("DistanceY", 6, 2, 9, 2, 1.067701))
sketch16.addConstraint(Sketcher.Constraint("DistanceX", 9, 2, 5, 2, 0.050199))
sketch16.addConstraint(Sketcher.Constraint("DistanceY", 5, 2, 9, 2, 1.437499))
sketch16.addConstraint(Sketcher.Constraint("DistanceY", 13, 2, 15, 2, 0.595399))
sketch16.addConstraint(Sketcher.Constraint("DistanceX", 15, 2, 11, 2, 0.048701))
sketch16.addConstraint(Sketcher.Constraint("DistanceY", 11, 2, 16, 2, 2.215601))
sketch16.addConstraint(Sketcher.Constraint("Distance", 3, 0.723849))
sketch16.addConstraint(Sketcher.Constraint("Distance", 11, 0.704418))
sketch16.addConstraint(Sketcher.Constraint("Distance", 12, 0.769129))
sketch16.addConstraint(Sketcher.Constraint("Distance", 13, 0.732792))
sketch16.addConstraint(Sketcher.Constraint("Distance", 14, 0.733679))
sketch16.addConstraint(Sketcher.Constraint("Distance", 15, 0.674778))
sketch16.addConstraint(Sketcher.Constraint("DistanceY", 17, 2, 17, 1, 6.638908))
sketch16.addConstraint(Sketcher.Constraint("DistanceY", 0, 2, -1, 1, 34.544862))
sketch16.addConstraint(Sketcher.Constraint("DistanceX", 1, 2, -1, 1, 3.114441))
sketch16.addConstraint(Sketcher.Constraint("DistanceY", 3, 2, -1, 1, 33.435869))
sketch16.addConstraint(Sketcher.Constraint("DistanceX", 5, 2, -1, 1, 3.16736))
sketch16.addConstraint(Sketcher.Constraint("DistanceY", 5, 2, -1, 1, 32.708132))
sketch16.addConstraint(Sketcher.Constraint("DistanceY", 7, 2, -1, 1, 31.982859))
sketch16.addConstraint(Sketcher.Constraint("DistanceY", 8, 2, -1, 1, 31.603982))
sketch16.addConstraint(Sketcher.Constraint("DistanceX", 10, 2, -1, 1, 3.867051))
sketch16.addConstraint(Sketcher.Constraint("DistanceX", 11, 2, -1, 1, 3.24308))
sketch16.addConstraint(Sketcher.Constraint("DistanceX", 13, 2, -1, 1, 3.270989))
sketch16.addConstraint(Sketcher.Constraint("DistanceY", 0, 2, 1, 2, 0.321338))
sketch16.addConstraint(Sketcher.Constraint("DistanceX", 0, 2, 3, 2, 0.59666))
sketch16.addConstraint(Sketcher.Constraint("DistanceX", 7, 2, 3, 2, 0.05074))
sketch16.addConstraint(Sketcher.Constraint("DistanceX", 9, 2, 7, 2, 0.024871))
sketch16.addConstraint(Sketcher.Constraint("Distance", 8, 0.751168))
groove = body9.newObject("PartDesign::Groove", "Groove")
groove.Profile = sketch16
groove.ReferenceAxis = (sketch16, ["V_Axis"])
groove.Angle = 360

doc.recompute()
